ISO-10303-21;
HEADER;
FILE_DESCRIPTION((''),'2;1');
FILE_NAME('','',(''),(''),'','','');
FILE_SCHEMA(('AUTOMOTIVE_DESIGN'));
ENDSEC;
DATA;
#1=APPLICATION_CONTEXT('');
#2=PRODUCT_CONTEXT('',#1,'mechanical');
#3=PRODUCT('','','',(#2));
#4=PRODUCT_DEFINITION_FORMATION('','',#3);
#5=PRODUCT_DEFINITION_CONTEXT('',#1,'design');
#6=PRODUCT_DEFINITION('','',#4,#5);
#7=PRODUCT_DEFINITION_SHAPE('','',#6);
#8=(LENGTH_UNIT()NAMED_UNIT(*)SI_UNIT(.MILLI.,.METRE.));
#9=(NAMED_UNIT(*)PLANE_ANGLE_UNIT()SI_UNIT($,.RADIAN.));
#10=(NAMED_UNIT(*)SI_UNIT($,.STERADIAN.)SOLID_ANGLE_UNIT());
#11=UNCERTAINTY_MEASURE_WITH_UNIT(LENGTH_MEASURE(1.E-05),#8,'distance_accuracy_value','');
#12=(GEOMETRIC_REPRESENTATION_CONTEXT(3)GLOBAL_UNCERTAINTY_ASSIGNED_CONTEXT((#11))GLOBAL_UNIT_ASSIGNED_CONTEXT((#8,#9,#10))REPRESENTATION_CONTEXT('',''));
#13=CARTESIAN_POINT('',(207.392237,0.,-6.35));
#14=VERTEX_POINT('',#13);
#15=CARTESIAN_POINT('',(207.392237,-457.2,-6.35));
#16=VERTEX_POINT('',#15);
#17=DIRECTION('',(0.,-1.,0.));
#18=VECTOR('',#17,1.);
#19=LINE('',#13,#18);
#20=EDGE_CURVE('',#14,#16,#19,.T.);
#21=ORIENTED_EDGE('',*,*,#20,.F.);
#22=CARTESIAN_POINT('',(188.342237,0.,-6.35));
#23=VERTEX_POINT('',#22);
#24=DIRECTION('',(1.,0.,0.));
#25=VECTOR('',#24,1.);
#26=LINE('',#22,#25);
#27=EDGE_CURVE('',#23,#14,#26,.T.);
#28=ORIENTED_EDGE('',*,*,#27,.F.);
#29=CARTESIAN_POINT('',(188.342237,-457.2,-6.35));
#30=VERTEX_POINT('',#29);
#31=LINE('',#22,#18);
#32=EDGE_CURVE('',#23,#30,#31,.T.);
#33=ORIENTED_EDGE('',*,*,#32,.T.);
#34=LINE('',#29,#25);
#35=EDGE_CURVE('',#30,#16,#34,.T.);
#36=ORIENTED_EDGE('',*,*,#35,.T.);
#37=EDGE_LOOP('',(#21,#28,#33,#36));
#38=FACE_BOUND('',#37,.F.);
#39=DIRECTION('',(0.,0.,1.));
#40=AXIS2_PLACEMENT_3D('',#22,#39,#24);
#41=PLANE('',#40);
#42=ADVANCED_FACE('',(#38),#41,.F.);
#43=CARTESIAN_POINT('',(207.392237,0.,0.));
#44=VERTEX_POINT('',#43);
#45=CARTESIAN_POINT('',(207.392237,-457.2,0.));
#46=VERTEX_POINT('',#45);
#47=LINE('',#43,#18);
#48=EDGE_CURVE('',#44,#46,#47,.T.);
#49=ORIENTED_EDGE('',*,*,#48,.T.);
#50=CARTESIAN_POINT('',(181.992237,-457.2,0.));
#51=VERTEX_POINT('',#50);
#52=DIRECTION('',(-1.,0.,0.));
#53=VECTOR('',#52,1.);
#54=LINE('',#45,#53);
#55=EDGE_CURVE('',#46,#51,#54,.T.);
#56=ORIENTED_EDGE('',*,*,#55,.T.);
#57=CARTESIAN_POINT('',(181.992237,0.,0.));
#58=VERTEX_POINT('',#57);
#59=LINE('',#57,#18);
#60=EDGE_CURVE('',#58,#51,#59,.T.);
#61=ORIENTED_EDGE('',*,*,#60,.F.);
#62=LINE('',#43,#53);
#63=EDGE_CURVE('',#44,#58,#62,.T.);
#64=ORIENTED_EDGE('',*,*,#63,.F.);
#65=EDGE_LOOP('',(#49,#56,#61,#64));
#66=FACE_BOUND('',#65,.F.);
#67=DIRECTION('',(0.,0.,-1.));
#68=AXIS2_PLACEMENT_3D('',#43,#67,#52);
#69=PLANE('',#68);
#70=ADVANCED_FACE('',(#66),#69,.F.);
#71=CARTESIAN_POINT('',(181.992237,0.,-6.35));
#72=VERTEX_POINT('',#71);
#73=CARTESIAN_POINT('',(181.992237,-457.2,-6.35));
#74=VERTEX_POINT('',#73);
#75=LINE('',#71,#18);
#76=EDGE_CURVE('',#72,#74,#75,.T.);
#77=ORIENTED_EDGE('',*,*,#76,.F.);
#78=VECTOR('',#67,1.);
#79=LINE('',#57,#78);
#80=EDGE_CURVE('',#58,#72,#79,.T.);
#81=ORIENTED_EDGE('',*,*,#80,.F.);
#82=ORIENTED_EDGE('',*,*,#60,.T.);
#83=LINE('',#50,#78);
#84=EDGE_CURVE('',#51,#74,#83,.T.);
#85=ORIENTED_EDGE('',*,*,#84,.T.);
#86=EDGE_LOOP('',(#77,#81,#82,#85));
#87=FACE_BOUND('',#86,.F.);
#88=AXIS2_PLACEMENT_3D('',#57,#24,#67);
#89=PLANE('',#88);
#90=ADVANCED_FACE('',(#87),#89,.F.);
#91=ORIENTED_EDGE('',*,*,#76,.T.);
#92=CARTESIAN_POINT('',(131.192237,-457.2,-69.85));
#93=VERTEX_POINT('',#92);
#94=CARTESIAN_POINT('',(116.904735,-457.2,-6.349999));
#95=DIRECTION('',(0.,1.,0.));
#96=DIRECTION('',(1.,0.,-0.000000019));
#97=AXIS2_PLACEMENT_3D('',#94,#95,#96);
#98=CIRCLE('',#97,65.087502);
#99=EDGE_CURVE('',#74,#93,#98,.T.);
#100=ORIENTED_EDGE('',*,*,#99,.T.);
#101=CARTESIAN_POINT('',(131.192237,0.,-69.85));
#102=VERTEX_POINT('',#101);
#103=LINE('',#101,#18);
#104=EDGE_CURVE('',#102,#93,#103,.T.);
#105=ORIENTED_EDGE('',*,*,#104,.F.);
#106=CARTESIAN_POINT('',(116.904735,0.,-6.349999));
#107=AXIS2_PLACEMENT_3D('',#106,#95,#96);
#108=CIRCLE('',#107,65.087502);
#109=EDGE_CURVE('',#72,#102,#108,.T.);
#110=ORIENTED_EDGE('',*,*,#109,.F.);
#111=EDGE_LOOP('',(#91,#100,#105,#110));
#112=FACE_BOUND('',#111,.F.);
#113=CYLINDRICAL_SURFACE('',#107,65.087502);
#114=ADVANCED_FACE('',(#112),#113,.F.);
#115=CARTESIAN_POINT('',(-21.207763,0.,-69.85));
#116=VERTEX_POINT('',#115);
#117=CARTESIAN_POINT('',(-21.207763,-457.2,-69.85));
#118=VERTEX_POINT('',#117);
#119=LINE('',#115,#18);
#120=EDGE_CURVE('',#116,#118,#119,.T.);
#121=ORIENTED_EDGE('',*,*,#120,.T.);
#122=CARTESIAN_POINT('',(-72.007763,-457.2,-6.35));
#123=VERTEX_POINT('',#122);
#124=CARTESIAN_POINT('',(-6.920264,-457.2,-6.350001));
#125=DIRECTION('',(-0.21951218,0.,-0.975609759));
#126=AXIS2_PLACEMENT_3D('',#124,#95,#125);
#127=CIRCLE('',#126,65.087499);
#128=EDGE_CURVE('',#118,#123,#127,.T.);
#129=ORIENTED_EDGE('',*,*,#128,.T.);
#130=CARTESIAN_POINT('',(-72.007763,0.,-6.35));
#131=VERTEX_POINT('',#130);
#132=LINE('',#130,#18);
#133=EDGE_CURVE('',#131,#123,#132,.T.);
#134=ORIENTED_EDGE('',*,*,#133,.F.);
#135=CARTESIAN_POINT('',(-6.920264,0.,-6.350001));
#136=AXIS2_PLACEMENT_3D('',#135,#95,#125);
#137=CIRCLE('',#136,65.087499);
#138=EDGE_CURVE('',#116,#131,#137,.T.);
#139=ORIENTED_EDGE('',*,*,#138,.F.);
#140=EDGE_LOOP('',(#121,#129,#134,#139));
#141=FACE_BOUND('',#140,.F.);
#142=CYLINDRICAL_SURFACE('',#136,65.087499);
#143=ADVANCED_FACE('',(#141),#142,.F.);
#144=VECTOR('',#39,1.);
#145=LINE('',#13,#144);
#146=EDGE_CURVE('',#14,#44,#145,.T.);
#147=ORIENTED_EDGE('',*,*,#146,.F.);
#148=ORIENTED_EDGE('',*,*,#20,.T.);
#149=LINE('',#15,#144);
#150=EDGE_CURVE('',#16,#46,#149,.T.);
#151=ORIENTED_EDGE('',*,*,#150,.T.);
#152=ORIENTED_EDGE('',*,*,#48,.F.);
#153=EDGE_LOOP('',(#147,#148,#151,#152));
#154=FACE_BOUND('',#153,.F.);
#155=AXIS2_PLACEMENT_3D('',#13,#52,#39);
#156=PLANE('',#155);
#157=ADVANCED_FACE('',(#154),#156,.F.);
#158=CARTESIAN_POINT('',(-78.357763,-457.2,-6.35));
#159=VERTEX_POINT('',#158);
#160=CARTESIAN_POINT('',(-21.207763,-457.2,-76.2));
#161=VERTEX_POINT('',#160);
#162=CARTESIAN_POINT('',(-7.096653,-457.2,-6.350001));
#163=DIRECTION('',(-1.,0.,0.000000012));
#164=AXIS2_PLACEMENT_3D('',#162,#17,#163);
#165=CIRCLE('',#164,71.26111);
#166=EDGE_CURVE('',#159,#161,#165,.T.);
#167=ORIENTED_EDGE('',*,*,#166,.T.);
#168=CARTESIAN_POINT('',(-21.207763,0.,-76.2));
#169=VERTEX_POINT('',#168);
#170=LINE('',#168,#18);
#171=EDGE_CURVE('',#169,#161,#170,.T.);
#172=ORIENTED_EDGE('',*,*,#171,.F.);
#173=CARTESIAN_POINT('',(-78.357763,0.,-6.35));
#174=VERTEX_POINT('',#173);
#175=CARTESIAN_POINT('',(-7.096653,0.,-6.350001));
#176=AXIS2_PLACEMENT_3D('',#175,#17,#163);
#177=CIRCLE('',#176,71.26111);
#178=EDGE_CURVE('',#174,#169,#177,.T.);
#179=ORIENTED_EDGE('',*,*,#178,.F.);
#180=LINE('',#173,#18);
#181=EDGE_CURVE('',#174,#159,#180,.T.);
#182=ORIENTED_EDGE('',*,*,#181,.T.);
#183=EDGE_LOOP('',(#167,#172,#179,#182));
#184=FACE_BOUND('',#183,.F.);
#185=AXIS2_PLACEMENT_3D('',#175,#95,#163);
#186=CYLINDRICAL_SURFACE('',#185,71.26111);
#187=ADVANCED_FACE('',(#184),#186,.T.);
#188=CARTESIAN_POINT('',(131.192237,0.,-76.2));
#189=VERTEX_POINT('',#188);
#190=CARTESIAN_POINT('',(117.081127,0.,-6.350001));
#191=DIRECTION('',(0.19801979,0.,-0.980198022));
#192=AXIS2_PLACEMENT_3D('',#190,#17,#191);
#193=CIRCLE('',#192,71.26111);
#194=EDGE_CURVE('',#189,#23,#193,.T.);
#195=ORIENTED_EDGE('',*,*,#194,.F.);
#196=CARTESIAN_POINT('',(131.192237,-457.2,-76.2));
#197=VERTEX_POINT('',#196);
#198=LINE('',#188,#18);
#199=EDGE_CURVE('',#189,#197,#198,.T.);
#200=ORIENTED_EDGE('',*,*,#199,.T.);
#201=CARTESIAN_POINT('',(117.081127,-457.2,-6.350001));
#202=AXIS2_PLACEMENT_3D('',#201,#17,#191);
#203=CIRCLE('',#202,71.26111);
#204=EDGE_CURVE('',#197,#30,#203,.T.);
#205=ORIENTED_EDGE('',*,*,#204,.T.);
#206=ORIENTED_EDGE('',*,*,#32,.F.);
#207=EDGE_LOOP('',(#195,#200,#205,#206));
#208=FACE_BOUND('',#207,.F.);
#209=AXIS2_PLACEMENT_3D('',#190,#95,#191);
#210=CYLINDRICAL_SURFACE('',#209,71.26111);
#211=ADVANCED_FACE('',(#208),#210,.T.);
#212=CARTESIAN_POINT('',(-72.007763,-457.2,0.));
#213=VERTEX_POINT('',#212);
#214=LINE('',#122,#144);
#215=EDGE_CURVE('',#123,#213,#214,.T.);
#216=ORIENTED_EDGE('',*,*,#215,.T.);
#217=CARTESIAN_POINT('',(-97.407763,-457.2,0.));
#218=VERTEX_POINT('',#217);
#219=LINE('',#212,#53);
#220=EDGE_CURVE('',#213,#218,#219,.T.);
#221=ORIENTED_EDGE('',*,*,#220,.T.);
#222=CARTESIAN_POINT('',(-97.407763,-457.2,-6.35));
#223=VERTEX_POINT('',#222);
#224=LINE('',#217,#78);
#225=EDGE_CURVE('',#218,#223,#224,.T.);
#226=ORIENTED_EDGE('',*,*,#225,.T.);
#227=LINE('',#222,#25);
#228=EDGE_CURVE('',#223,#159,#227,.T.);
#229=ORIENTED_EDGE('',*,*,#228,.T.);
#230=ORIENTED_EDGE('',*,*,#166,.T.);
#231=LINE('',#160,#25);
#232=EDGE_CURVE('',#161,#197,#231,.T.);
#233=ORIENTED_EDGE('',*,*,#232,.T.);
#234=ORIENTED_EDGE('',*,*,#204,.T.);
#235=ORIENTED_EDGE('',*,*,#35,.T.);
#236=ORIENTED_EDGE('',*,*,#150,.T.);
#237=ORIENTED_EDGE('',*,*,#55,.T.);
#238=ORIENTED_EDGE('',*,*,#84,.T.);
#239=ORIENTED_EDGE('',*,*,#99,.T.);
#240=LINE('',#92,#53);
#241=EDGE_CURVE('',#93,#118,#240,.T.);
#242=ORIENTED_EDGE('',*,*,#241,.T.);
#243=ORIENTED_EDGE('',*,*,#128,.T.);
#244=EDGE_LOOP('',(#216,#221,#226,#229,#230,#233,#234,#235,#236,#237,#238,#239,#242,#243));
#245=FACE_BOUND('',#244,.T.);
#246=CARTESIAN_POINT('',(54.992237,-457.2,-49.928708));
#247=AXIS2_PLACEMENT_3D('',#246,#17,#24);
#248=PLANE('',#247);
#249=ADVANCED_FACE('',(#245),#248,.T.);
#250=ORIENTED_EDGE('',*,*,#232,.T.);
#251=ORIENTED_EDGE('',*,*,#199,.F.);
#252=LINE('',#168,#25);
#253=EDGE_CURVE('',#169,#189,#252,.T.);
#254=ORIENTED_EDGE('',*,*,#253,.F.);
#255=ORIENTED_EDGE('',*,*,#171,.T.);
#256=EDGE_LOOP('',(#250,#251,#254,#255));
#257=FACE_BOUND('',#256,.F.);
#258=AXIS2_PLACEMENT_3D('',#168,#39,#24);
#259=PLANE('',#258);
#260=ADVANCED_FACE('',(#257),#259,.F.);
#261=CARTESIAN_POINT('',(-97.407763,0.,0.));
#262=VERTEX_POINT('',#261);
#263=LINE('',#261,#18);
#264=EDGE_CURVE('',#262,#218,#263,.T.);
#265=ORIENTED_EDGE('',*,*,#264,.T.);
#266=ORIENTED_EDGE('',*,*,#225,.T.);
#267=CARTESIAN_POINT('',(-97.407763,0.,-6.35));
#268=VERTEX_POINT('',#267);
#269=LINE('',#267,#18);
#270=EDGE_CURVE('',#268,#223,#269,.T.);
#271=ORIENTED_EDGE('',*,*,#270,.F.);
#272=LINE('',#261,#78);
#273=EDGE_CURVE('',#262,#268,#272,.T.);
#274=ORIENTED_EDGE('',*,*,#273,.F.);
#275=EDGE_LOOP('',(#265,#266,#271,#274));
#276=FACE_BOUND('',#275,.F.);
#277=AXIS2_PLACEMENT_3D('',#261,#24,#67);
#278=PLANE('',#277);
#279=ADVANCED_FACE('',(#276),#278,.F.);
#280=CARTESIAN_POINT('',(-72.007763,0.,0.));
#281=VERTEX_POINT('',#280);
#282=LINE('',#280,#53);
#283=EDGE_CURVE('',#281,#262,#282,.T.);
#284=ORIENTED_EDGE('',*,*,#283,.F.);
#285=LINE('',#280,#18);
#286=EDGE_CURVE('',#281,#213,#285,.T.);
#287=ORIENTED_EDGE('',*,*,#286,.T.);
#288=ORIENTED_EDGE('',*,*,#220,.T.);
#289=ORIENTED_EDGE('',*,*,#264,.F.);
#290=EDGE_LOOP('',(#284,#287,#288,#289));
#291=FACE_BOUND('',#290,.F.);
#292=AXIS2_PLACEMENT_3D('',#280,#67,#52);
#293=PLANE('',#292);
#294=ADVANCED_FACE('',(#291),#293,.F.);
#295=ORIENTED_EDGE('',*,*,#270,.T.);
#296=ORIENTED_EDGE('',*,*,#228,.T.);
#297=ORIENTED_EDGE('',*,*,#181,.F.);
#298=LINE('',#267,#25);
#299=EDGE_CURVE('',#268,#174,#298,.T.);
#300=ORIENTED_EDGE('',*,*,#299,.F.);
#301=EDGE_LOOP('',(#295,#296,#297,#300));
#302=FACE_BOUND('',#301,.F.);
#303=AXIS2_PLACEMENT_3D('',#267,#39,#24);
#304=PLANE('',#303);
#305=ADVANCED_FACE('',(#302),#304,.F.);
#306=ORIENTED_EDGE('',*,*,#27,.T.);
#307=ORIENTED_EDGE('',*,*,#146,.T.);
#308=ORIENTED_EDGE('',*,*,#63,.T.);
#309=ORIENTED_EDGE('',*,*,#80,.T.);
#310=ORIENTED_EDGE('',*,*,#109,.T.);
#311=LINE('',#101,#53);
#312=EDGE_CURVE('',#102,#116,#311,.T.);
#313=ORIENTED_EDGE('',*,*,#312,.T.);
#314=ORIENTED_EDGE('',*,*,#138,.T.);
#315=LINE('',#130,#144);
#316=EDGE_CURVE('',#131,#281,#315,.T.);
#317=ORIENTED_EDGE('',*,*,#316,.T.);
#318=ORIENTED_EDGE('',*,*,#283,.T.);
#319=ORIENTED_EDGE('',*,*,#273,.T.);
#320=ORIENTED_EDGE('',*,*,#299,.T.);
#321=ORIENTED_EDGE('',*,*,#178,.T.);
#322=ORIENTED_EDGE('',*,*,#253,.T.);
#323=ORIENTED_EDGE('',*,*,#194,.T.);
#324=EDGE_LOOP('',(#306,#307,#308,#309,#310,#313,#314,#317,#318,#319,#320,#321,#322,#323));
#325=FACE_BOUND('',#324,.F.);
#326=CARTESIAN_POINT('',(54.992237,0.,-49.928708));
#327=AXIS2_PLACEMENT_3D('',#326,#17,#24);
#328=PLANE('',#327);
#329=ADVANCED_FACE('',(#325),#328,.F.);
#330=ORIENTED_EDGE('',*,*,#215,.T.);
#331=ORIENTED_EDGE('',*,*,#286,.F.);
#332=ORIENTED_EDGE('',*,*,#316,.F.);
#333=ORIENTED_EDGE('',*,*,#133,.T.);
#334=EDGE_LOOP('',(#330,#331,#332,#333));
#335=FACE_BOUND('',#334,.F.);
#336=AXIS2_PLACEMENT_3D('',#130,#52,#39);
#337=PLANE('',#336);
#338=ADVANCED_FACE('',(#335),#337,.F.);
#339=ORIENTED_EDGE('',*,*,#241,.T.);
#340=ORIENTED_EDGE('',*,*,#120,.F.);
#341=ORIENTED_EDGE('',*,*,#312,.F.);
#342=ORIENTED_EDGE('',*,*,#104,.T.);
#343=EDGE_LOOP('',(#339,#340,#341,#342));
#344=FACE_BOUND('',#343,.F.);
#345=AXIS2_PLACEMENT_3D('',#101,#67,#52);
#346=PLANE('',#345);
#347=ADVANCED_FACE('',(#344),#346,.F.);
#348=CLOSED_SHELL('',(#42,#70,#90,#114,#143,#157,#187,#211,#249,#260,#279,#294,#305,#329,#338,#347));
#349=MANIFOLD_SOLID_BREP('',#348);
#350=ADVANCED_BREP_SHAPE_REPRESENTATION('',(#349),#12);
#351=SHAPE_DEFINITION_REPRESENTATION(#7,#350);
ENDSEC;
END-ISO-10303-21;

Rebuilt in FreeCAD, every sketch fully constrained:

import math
import FreeCAD as App
import Part
import Sketcher
Q = App.Units.Quantity

doc = App.newDocument("Part")
body = doc.addObject("PartDesign::Body", "Body")

# Sketch on XZ plane
sketch1 = doc.addObject("Sketcher::SketchObject", "Sketch")
body.addObject(sketch1)
sketch1.AttachmentSupport = (doc.XZ_Plane, [""])
sketch1.MapMode = "FlatFace"
sketch1.addGeometry([
    Part.LineSegment(App.Vector(-72, 0, 0), App.Vector(-97, 0, 0)),  # 0
    Part.LineSegment(App.Vector(-97, 0, 0), App.Vector(-97, -6, 0)),  # 1
    Part.LineSegment(App.Vector(-97, -6, 0), App.Vector(-78, -6, 0)),  # 2
    Part.ArcOfCircle(Part.Circle(App.Vector(-7, -6, 0), App.Vector(0, 0, 1), 71), math.radians(180), math.radians(259)),  # 3
    Part.LineSegment(App.Vector(-21, -76, 0), App.Vector(131, -76, 0)),  # 4
    Part.ArcOfCircle(Part.Circle(App.Vector(117, -6, 0), App.Vector(0, 0, 1), 71), math.radians(-79), math.radians(0)),  # 5
    Part.LineSegment(App.Vector(188, -6, 0), App.Vector(207, -6, 0)),  # 6
    Part.LineSegment(App.Vector(207, -6, 0), App.Vector(207, 0, 0)),  # 7
    Part.LineSegment(App.Vector(207, 0, 0), App.Vector(182, 0, 0)),  # 8
    Part.LineSegment(App.Vector(182, 0, 0), App.Vector(182, -6, 0)),  # 9
    Part.ArcOfCircle(Part.Circle(App.Vector(117, -6, 0), App.Vector(0, 0, 1), 65), math.radians(-77), math.radians(0)),  # 10
    Part.LineSegment(App.Vector(131, -70, 0), App.Vector(-21, -70, 0)),  # 11
    Part.ArcOfCircle(Part.Circle(App.Vector(-7, -6, 0), App.Vector(0, 0, 1), 65), math.radians(180), math.radians(257)),  # 12
    Part.LineSegment(App.Vector(-72, -6, 0), App.Vector(-72, 0, 0)),  # 13
], False)
sketch1.addConstraint([
    Sketcher.Constraint("Coincident", 0, 2, 1, 1),
    Sketcher.Constraint("Coincident", 1, 2, 2, 1),
    Sketcher.Constraint("Coincident", 2, 2, 3, 1),
    Sketcher.Constraint("Coincident", 3, 2, 4, 1),
    Sketcher.Constraint("Coincident", 4, 2, 5, 1),
    Sketcher.Constraint("Coincident", 5, 2, 6, 1),
    Sketcher.Constraint("Coincident", 6, 2, 7, 1),
    Sketcher.Constraint("Coincident", 7, 2, 8, 1),
    Sketcher.Constraint("Coincident", 8, 2, 9, 1),
    Sketcher.Constraint("Tangent", 9, 2, 10, 2),
    Sketcher.Constraint("Coincident", 10, 1, 11, 1),
    Sketcher.Constraint("Coincident", 11, 2, 12, 2),
    Sketcher.Constraint("Tangent", 12, 1, 13, 1),
    Sketcher.Constraint("Coincident", 13, 2, 0, 1),
    Sketcher.Constraint("Horizontal", 0),
    Sketcher.Constraint("Vertical", 1),
    Sketcher.Constraint("Horizontal", 2),
    Sketcher.Constraint("Horizontal", 4),
    Sketcher.Constraint("Horizontal", 6),
    Sketcher.Constraint("Vertical", 7),
    Sketcher.Constraint("Horizontal", 8),
    Sketcher.Constraint("Vertical", 9),
    Sketcher.Constraint("Horizontal", 11),
    Sketcher.Constraint("Vertical", 13),
    Sketcher.Constraint("Equal", 3, 5),
    Sketcher.Constraint("PointOnObject", 0, 2, -1),
    Sketcher.Constraint("PointOnObject", 7, 2, -1),
    Sketcher.Constraint("Horizontal", 3, 3, 5, 3),
    Sketcher.Constraint("Horizontal", 5, 3, 12, 3),
    Sketcher.Constraint("Horizontal", 12, 3, 1, 2),
    Sketcher.Constraint("Horizontal", 2, 2, 5, 2),
    Sketcher.Constraint("Horizontal", 6, 2, 9, 2),
    Sketcher.Constraint("Vertical", 4, 2, 10, 1),
    Sketcher.Constraint("Vertical", 3, 2, 11, 2),
    Sketcher.Constraint("Equal", 2, 6),
    Sketcher.Constraint("Equal", 0, 8),
    Sketcher.Constraint("DistanceX", 0, 2, 0, 1, Q("1 in")),
    Sketcher.Constraint("DistanceX", 4, 1, 4, 2, Q("6 in")),
    Sketcher.Constraint("DistanceY", 3, 2, -1, 1, Q("3 in")),
    Sketcher.Constraint("Radius", 10, Q("2.5625001 in")),
    Sketcher.Constraint("DistanceX", 1, 2, 3, 2, Q("3 in")),
    Sketcher.Constraint("DistanceX", 2, 1, 2, 2, Q("0.75 in")),
    Sketcher.Constraint("DistanceY", 1, 2, 1, 1, Q("0.25 in")),
    Sketcher.Constraint("DistanceX", 3, 3, -1, 1, Q("7.096653 mm")),
])
pad1 = doc.addObject("PartDesign::Pad", "Pad")
body.addObject(pad1)
pad1.Profile = sketch1
pad1.Length = Q("18 in")

doc.recompute()
